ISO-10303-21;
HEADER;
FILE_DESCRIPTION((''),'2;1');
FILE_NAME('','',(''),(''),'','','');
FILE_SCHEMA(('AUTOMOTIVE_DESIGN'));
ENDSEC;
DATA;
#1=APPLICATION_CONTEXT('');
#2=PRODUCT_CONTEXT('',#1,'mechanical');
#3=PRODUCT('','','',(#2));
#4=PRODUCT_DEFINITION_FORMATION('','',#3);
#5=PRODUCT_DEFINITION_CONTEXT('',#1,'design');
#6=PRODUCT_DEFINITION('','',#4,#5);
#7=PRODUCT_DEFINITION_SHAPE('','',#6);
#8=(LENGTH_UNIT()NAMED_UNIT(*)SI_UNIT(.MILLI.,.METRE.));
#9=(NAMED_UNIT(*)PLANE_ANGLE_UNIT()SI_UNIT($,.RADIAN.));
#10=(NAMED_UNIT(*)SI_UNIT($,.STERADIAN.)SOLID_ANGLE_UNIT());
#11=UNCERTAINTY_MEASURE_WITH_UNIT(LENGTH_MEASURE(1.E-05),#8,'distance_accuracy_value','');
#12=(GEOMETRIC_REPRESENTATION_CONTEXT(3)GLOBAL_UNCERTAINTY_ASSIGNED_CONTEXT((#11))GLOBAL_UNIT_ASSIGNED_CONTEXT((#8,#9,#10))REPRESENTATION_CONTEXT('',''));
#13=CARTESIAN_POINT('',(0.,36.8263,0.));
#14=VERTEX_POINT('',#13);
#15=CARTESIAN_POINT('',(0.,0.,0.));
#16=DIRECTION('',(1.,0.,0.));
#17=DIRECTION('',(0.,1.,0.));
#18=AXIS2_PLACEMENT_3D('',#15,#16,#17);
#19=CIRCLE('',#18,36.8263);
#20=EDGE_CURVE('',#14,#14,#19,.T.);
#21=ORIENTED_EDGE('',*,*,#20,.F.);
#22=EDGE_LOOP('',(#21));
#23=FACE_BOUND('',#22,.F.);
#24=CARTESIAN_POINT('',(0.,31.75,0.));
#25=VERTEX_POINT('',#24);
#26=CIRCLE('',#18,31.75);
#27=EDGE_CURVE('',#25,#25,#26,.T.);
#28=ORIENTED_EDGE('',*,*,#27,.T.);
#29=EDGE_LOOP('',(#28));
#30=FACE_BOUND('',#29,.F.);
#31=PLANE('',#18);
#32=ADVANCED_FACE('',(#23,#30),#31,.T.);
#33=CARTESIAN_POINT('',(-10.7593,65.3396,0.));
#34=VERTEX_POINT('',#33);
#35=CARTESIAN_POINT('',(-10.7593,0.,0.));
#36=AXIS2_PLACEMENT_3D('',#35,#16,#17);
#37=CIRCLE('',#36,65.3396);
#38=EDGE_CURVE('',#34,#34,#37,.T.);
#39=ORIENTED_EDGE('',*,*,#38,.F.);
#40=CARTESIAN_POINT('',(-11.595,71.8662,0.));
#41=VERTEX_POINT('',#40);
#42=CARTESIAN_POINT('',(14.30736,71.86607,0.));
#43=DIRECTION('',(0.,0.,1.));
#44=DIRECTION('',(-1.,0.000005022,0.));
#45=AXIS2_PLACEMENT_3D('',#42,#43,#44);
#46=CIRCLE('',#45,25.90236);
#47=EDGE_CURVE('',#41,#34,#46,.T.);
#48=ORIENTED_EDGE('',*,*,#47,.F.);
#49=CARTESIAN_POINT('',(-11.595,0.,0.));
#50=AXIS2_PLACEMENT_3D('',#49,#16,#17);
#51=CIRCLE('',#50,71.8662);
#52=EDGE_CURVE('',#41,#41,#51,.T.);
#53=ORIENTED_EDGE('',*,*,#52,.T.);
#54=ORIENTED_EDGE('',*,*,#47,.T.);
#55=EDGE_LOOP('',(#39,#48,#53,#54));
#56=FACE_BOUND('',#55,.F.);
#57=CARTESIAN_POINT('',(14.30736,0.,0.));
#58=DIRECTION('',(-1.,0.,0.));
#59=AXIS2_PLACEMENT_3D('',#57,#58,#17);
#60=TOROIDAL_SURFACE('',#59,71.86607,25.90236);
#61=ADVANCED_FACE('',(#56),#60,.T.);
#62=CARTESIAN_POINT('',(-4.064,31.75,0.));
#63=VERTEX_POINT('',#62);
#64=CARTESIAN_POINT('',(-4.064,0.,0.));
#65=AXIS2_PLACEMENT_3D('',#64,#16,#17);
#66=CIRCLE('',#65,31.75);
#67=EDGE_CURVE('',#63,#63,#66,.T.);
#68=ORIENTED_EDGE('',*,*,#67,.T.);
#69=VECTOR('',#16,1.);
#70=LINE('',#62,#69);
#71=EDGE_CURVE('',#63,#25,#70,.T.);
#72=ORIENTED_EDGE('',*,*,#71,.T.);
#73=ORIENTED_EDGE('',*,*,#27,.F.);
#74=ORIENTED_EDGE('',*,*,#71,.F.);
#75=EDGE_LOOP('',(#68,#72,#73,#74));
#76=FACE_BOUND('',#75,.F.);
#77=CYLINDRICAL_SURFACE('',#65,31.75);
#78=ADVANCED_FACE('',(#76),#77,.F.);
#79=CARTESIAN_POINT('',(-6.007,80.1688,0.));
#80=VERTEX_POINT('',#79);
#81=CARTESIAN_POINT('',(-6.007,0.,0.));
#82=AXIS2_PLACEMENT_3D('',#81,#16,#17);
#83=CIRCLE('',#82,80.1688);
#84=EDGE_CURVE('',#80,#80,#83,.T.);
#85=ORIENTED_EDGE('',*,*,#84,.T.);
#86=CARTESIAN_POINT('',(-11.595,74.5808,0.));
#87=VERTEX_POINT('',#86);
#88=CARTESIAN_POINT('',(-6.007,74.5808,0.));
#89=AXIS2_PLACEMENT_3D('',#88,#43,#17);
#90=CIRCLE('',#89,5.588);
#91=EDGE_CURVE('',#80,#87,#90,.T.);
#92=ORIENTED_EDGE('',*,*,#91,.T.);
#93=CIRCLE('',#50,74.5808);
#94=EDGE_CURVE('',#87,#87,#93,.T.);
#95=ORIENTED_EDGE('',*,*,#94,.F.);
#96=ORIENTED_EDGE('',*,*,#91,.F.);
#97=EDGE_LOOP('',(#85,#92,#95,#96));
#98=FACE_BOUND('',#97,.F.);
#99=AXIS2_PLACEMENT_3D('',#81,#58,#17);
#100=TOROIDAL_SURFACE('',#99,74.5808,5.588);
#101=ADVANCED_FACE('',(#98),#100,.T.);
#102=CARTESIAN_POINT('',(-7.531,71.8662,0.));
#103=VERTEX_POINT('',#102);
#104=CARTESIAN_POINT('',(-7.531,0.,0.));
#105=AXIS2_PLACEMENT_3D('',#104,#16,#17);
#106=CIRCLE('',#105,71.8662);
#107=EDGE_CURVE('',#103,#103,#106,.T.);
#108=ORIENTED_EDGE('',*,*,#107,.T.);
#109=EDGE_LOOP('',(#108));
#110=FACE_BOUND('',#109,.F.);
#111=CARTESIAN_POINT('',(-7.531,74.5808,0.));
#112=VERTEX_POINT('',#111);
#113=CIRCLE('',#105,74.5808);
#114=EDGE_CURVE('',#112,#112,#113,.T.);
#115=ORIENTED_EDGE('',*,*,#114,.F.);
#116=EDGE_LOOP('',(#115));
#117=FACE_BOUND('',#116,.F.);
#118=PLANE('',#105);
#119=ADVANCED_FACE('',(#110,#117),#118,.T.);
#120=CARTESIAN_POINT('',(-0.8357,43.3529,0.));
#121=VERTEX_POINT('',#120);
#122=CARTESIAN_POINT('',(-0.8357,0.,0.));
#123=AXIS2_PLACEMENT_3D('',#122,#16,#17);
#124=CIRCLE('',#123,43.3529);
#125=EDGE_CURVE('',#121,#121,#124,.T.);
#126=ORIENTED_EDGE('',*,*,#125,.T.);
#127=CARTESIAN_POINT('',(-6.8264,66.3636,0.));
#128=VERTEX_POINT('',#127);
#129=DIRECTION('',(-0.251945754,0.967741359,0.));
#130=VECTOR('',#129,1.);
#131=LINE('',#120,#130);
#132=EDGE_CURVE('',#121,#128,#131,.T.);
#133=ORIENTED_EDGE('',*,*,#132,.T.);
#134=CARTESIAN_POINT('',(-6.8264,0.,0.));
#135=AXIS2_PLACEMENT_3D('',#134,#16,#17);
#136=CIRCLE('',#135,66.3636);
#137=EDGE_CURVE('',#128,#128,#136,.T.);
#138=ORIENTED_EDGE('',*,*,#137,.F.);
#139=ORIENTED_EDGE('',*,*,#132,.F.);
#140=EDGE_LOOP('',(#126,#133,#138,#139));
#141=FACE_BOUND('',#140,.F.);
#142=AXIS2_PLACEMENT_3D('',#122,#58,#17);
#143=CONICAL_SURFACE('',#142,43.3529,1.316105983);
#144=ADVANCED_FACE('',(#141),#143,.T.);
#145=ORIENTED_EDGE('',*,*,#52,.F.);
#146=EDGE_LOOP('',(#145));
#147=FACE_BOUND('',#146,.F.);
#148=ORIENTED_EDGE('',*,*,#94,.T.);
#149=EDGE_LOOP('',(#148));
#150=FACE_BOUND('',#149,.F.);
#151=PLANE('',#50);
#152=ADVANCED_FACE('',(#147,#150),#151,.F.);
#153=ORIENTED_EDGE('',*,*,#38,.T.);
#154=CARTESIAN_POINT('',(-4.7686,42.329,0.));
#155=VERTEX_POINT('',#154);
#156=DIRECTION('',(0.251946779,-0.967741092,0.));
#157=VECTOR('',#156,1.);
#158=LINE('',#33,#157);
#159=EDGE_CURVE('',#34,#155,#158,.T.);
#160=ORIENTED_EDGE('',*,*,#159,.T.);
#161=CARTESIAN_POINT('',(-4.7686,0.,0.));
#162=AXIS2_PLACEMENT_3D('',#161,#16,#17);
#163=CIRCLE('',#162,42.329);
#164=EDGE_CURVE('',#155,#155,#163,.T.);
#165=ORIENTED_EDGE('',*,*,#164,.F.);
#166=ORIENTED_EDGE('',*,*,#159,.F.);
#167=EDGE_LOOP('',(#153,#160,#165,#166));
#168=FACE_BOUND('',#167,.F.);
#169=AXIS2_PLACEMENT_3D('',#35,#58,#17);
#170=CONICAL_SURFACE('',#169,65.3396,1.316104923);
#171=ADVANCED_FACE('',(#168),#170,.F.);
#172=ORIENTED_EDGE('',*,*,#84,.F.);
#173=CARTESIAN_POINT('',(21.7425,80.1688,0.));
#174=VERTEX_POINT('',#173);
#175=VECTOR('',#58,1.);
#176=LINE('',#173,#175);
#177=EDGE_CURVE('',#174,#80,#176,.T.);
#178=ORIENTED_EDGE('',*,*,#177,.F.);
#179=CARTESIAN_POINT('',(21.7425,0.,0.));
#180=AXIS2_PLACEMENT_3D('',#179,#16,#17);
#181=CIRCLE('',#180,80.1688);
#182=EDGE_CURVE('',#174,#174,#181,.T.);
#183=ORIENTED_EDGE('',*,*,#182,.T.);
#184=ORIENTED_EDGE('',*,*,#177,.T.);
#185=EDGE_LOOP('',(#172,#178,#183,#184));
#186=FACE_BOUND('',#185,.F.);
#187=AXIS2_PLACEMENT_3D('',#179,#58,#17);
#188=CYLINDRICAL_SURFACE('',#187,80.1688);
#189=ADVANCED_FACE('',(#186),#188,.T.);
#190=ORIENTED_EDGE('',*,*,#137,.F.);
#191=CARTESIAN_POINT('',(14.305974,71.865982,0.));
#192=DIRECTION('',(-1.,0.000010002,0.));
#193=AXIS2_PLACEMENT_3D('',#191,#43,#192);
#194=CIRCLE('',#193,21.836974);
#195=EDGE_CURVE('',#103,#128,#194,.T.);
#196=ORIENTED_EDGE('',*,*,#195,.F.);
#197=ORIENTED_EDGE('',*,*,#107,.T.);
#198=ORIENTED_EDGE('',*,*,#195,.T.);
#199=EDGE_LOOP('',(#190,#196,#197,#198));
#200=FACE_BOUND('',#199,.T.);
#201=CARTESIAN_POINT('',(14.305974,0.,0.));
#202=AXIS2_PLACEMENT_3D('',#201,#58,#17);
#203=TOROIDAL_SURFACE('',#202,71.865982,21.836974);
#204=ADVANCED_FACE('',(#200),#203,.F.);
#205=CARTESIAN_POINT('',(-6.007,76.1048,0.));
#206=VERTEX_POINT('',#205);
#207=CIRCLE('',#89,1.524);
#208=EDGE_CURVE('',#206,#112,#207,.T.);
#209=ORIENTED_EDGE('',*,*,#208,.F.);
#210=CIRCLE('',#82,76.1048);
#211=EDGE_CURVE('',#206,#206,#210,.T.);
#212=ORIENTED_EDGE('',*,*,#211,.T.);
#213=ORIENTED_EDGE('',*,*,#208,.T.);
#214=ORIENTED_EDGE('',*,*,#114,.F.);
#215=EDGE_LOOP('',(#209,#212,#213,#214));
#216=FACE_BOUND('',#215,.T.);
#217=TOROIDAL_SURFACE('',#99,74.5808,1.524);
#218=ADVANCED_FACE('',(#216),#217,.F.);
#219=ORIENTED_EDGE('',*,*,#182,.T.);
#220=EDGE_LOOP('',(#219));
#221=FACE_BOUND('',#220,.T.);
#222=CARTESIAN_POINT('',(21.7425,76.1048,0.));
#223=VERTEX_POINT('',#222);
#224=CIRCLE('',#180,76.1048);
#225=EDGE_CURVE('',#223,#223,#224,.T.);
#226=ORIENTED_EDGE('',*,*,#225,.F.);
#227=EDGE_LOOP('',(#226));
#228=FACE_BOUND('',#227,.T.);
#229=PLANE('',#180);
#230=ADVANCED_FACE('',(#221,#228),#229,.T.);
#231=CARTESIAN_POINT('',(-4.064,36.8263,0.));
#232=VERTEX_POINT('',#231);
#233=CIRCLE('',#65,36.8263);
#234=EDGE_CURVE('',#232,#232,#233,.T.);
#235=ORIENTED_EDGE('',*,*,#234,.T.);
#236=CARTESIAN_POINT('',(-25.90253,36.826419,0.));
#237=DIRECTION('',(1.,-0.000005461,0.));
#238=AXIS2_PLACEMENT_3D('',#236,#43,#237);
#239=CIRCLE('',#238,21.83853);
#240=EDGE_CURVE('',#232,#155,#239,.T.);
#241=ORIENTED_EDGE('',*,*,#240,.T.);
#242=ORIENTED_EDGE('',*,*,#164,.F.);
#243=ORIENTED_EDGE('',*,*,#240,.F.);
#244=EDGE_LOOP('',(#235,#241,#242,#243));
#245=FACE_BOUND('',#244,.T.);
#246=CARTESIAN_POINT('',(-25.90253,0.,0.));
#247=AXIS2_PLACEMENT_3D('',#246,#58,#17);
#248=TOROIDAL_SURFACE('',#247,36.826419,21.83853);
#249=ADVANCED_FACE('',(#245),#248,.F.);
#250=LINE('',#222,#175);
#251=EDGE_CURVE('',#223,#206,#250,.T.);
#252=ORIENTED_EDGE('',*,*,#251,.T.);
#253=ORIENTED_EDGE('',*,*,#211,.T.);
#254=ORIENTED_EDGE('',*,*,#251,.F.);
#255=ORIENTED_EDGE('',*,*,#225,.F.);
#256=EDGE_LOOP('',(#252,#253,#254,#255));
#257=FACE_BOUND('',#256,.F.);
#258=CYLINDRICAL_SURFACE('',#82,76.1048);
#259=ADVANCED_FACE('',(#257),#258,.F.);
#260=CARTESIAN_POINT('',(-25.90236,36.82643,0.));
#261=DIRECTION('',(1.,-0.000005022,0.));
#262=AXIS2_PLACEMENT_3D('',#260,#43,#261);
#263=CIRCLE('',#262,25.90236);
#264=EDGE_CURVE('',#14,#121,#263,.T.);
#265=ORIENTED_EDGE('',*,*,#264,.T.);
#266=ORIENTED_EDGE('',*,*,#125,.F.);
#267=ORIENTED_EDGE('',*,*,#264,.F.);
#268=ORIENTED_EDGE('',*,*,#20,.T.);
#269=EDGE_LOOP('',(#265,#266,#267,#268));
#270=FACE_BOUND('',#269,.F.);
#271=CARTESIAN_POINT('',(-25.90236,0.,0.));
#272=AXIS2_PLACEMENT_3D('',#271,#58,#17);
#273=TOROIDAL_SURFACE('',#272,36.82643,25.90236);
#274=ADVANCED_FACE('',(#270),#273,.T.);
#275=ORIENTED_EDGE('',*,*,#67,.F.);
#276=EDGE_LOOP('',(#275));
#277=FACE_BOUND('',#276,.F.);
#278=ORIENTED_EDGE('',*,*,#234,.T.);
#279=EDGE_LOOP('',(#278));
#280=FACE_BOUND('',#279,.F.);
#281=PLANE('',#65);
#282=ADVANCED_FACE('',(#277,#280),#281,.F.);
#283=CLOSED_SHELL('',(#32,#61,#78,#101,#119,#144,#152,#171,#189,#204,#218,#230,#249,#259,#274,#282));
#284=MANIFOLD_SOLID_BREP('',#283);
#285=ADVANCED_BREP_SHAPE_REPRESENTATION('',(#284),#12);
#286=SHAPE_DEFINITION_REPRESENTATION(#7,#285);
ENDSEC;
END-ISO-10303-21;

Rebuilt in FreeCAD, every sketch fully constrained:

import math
import FreeCAD as App
import Part
import Sketcher
Q = App.Units.Quantity

doc = App.newDocument("Part")
body = doc.addObject("PartDesign::Body", "Body")

# Sketch on XY plane
sketch1 = body.newObject("Sketcher::SketchObject", "Sketch")
sketch1.AttachmentSupport = (doc.getObject("XY_Plane"), [""])
sketch1.MapMode = "FlatFace"
sketch1.addGeometry(Part.LineSegment(App.Vector(-4.1, 31.8, 0), App.Vector(0, 31.8, 0)), False)
sketch1.addGeometry(Part.LineSegment(App.Vector(0, 31.8, 0), App.Vector(0, 36.8, 0)), False)
sketch1.addGeometry(Part.ArcOfCircle(Part.Circle(App.Vector(-25.9, 36.8, 0), App.Vector(0, 0, 1), 25.9), math.radians(0), math.radians(14.59)), False)
sketch1.addGeometry(Part.LineSegment(App.Vector(-0.8, 43.4, 0), App.Vector(-6.8, 66.4, 0)), False)
sketch1.addGeometry(Part.ArcOfCircle(Part.Circle(App.Vector(14.3, 71.9, 0), App.Vector(0, 0, 1), 21.8), math.radians(180), math.radians(194.59)), False)
sketch1.addGeometry(Part.LineSegment(App.Vector(-7.5, 71.9, 0), App.Vector(-7.5, 74.6, 0)), False)
sketch1.addGeometry(Part.ArcOfCircle(Part.Circle(App.Vector(-6, 74.6, 0), App.Vector(0, 0, 1), 1.5), math.radians(90), math.radians(180)), False)
sketch1.addGeometry(Part.LineSegment(App.Vector(-6, 76.1, 0), App.Vector(21.7, 76.1, 0)), False)
sketch1.addGeometry(Part.LineSegment(App.Vector(21.7, 76.1, 0), App.Vector(21.7, 80.2, 0)), False)
sketch1.addGeometry(Part.LineSegment(App.Vector(21.7, 80.2, 0), App.Vector(-6, 80.2, 0)), False)
sketch1.addGeometry(Part.ArcOfCircle(Part.Circle(App.Vector(-6, 74.6, 0), App.Vector(0, 0, 1), 5.6), math.radians(90), math.radians(180)), False)
sketch1.addGeometry(Part.LineSegment(App.Vector(-11.6, 74.6, 0), App.Vector(-11.6, 71.9, 0)), False)
sketch1.addGeometry(Part.ArcOfCircle(Part.Circle(App.Vector(14.3, 71.9, 0), App.Vector(0, 0, 1), 25.9), math.radians(180), math.radians(194.59)), False)
sketch1.addGeometry(Part.LineSegment(App.Vector(-10.8, 65.3, 0), App.Vector(-4.8, 42.3, 0)), False)
sketch1.addGeometry(Part.ArcOfCircle(Part.Circle(App.Vector(-25.9, 36.8, 0), App.Vector(0, 0, 1), 21.8), math.radians(0), math.radians(14.59)), False)
sketch1.addGeometry(Part.LineSegment(App.Vector(-4.1, 36.8, 0), App.Vector(-4.1, 31.8, 0)), False)
sketch1.addConstraint(Sketcher.Constraint("Coincident", 0, 2, 1, 1))
sketch1.addConstraint(Sketcher.Constraint("Tangent", 1, 2, 2, 1))
sketch1.addConstraint(Sketcher.Constraint("Tangent", 2, 2, 3, 1))
sketch1.addConstraint(Sketcher.Constraint("Tangent", 3, 2, 4, 2))
sketch1.addConstraint(Sketcher.Constraint("Tangent", 4, 1, 5, 1))
sketch1.addConstraint(Sketcher.Constraint("Tangent", 5, 2, 6, 2))
sketch1.addConstraint(Sketcher.Constraint("Tangent", 6, 1, 7, 1))
sketch1.addConstraint(Sketcher.Constraint("Coincident", 7, 2, 8, 1))
sketch1.addConstraint(Sketcher.Constraint("Coincident", 8, 2, 9, 1))
sketch1.addConstraint(Sketcher.Constraint("Tangent", 9, 2, 10, 1))
sketch1.addConstraint(Sketcher.Constraint("Tangent", 10, 2, 11, 1))
sketch1.addConstraint(Sketcher.Constraint("Tangent", 11, 2, 12, 1))
sketch1.addConstraint(Sketcher.Constraint("Tangent", 12, 2, 13, 1))
sketch1.addConstraint(Sketcher.Constraint("Tangent", 13, 2, 14, 2))
sketch1.addConstraint(Sketcher.Constraint("Tangent", 14, 1, 15, 1))
sketch1.addConstraint(Sketcher.Constraint("Coincident", 15, 2, 0, 1))
sketch1.addConstraint(Sketcher.Constraint("Horizontal", 0))
sketch1.addConstraint(Sketcher.Constraint("Vertical", 1))
sketch1.addConstraint(Sketcher.Constraint("Vertical", 5))
sketch1.addConstraint(Sketcher.Constraint("Horizontal", 7))
sketch1.addConstraint(Sketcher.Constraint("Vertical", 8))
sketch1.addConstraint(Sketcher.Constraint("Horizontal", 9))
sketch1.addConstraint(Sketcher.Constraint("Vertical", 11))
sketch1.addConstraint(Sketcher.Constraint("Vertical", 15))
sketch1.addConstraint(Sketcher.Constraint("Coincident", 10, 3, 6, 3))
sketch1.addConstraint(Sketcher.Constraint("Coincident", 14, 3, 2, 3))
sketch1.addConstraint(Sketcher.Constraint("Equal", 2, 12))
sketch1.addConstraint(Sketcher.Constraint("PointOnObject", 0, 2, -2))
sketch1.addConstraint(Sketcher.Constraint("Parallel", 3, 13))
sketch1.addConstraint(Sketcher.Constraint("Horizontal", 4, 3, 12, 3))
sketch1.addConstraint(Sketcher.Constraint("Equal", 0, 8))
sketch1.addConstraint(Sketcher.Constraint("Radius", 6, Q("0.06 in")))
sketch1.addConstraint(Sketcher.Constraint("DistanceX", 0, 1, 0, 2, Q("0.16 in")))
sketch1.addConstraint(Sketcher.Constraint("DistanceY", -1, 1, 0, 2, Q("1.25 in")))
sketch1.addConstraint(Sketcher.Constraint("Radius", 2, 25.9024))
sketch1.addConstraint(Sketcher.Constraint("DistanceX", 7, 1, 7, 2, Q("1.0925 in")))
sketch1.addConstraint(Sketcher.Constraint("DistanceX", -1, 1, 7, 2, Q("0.856 in")))
sketch1.addConstraint(Sketcher.Constraint("DistanceY", -1, 1, 8, 2, Q("3.156252 in")))
sketch1.addConstraint(Sketcher.Constraint("DistanceY", 1, 1, 1, 2, 5.0763))
sketch1.addConstraint(Sketcher.Constraint("DistanceY", 5, 1, 5, 2, 2.7146))
revolution = body.newObject("PartDesign::Revolution", "Revolution")
revolution.Profile = sketch1
revolution.ReferenceAxis = (sketch1, ["H_Axis"])
revolution.Angle = 360

doc.recompute()
